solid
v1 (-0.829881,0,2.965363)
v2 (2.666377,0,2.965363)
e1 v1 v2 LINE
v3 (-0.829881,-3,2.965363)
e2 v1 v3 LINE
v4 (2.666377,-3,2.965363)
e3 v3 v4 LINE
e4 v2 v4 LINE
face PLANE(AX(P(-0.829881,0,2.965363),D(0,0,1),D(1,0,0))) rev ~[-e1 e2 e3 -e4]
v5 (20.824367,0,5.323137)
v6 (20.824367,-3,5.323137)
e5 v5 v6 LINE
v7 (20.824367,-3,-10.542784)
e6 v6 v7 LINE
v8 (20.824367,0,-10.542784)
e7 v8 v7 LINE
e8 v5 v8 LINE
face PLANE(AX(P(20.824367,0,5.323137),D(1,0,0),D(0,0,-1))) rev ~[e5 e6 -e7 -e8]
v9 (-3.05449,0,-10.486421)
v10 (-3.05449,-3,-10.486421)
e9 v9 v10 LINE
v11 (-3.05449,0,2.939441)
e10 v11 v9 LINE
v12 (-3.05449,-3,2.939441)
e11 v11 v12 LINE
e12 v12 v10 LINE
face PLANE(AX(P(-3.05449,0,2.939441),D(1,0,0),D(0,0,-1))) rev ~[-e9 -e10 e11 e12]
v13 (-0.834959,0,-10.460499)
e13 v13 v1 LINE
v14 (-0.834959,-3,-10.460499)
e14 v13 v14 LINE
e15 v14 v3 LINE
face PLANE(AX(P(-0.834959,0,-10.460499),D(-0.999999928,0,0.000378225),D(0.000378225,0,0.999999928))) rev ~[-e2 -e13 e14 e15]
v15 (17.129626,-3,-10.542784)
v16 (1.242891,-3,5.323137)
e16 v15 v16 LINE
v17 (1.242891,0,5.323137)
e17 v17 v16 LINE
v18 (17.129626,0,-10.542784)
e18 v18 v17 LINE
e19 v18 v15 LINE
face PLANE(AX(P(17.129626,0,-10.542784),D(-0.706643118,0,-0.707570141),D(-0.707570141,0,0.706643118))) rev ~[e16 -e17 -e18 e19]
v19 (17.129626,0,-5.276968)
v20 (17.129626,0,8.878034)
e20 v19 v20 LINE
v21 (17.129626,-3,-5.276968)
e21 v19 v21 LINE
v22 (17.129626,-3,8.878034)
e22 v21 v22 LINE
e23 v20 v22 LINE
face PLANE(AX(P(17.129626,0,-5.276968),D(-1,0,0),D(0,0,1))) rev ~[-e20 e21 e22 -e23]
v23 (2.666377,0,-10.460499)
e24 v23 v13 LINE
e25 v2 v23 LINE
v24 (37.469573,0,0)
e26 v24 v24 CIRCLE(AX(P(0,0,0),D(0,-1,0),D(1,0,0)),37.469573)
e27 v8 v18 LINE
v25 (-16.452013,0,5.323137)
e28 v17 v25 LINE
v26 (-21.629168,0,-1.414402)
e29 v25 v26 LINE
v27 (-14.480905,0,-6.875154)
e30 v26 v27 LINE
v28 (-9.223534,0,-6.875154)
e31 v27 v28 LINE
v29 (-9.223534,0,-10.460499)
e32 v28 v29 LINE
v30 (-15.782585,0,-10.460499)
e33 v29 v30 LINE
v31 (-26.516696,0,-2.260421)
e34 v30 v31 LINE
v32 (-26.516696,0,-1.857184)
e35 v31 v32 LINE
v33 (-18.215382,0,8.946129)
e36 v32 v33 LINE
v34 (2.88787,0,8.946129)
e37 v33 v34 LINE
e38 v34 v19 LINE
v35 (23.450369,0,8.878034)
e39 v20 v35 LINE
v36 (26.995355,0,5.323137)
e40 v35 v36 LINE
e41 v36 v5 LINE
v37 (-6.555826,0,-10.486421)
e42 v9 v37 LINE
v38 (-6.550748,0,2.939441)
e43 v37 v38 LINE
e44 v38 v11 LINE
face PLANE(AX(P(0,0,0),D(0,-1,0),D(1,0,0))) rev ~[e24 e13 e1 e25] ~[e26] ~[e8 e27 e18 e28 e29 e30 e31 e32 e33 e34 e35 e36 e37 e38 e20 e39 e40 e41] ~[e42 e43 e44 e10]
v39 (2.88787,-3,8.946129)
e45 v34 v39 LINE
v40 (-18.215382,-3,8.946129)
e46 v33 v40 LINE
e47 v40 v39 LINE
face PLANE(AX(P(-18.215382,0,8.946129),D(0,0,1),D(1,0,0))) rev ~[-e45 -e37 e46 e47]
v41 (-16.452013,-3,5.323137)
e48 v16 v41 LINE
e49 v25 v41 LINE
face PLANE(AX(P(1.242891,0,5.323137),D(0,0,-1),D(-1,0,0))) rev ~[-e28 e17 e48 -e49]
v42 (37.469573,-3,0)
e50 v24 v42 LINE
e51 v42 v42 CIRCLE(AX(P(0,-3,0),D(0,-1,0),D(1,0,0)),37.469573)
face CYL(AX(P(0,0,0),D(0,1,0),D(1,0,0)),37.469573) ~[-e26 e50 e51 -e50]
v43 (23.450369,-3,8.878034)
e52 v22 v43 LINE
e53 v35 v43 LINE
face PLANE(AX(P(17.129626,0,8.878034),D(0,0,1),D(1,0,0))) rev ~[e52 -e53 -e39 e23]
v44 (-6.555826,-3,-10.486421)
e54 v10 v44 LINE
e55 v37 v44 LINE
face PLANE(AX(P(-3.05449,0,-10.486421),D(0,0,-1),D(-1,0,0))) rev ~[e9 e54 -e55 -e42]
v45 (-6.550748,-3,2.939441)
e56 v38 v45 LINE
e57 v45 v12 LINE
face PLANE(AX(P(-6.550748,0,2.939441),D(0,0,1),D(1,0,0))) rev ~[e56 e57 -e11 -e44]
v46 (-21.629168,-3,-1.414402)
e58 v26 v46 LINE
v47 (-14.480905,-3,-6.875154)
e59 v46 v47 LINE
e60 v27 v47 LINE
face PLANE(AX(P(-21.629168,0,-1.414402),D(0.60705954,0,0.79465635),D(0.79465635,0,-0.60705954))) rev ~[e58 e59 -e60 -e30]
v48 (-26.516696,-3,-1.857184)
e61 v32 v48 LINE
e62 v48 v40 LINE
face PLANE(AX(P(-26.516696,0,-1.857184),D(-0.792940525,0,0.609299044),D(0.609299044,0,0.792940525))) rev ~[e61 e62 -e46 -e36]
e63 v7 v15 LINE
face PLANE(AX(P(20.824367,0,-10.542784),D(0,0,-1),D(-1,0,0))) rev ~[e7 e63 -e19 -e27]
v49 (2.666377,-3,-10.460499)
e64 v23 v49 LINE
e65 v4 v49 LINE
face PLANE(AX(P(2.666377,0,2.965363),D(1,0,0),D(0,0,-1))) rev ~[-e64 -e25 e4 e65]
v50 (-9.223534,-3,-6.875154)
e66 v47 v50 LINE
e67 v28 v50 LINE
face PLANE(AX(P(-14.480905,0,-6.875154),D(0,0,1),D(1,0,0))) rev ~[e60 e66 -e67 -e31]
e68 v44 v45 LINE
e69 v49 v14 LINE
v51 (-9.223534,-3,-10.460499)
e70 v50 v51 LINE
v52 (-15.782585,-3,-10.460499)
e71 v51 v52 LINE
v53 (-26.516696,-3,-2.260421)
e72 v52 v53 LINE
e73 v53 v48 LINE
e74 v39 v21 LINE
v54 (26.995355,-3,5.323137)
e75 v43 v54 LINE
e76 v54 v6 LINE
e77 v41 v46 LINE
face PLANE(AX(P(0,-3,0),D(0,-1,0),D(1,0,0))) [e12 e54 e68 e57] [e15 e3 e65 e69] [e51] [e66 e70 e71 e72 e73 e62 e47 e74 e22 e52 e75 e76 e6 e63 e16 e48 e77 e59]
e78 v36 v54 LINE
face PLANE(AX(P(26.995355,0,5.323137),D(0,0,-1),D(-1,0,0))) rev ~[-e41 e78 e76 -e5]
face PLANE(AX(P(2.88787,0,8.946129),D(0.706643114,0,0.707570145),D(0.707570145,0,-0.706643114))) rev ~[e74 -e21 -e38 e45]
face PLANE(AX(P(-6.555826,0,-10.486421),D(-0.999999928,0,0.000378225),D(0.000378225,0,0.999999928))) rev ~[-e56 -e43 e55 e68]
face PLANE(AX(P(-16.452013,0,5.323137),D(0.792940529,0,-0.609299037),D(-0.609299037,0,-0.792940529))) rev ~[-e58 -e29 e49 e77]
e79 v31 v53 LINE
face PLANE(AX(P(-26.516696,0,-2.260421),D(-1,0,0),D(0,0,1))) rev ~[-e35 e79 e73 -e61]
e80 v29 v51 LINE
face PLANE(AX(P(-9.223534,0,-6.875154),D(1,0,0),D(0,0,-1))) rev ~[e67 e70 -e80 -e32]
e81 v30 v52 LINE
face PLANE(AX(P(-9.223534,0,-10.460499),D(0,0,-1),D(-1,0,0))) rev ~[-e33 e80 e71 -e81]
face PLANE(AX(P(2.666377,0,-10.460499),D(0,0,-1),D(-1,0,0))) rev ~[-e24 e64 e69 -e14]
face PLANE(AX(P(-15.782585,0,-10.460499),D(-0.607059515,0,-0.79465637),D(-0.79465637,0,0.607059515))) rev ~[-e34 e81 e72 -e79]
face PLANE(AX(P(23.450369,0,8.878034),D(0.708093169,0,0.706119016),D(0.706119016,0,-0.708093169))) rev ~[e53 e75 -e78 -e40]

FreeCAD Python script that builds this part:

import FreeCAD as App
import Part
import Sketcher

V = App.Vector
Q = App.Units.Quantity

doc = App.newDocument("Part")
body = doc.addObject("PartDesign::Body", "Body")

# Sketch on XZ plane
sketch1 = body.newObject("Sketcher::SketchObject", "Sketch")
sketch1.AttachmentSupport = (doc.getObject("XZ_Plane"), [""])
sketch1.MapMode = "FlatFace"
sketch1.addGeometry(Part.Circle(V(0, 0, 0), V(0, 0, 1), 37.47), False)
sketch1.addGeometry(Part.LineSegment(V(-3.05, 2.94, 0), V(-3.05, -10.49, 0)), False)
sketch1.addGeometry(Part.LineSegment(V(-3.05, -10.49, 0), V(-6.56, -10.49, 0)), False)
sketch1.addGeometry(Part.LineSegment(V(-6.56, -10.49, 0), V(-6.55, 2.94, 0)), False)
sketch1.addGeometry(Part.LineSegment(V(-6.55, 2.94, 0), V(-3.05, 2.94, 0)), False)
sketch1.addGeometry(Part.LineSegment(V(2.67, 2.97, 0), V(2.67, -10.46, 0)), False)
sketch1.addGeometry(Part.LineSegment(V(2.67, -10.46, 0), V(-0.83, -10.46, 0)), False)
sketch1.addGeometry(Part.LineSegment(V(-0.83, -10.46, 0), V(-0.83, 2.97, 0)), False)
sketch1.addGeometry(Part.LineSegment(V(-0.83, 2.97, 0), V(2.67, 2.97, 0)), False)
sketch1.addGeometry(Part.LineSegment(V(-21.63, -1.41, 0), V(-14.48, -6.88, 0)), False)
sketch1.addGeometry(Part.LineSegment(V(-14.48, -6.88, 0), V(-9.22, -6.88, 0)), False)
sketch1.addGeometry(Part.LineSegment(V(-9.22, -6.88, 0), V(-9.22, -10.46, 0)), False)
sketch1.addGeometry(Part.LineSegment(V(-9.22, -10.46, 0), V(-15.78, -10.46, 0)), False)
sketch1.addGeometry(Part.LineSegment(V(-15.78, -10.46, 0), V(-26.52, -2.26, 0)), False)
sketch1.addGeometry(Part.LineSegment(V(-26.52, -2.26, 0), V(-26.52, -1.86, 0)), False)
sketch1.addGeometry(Part.LineSegment(V(-26.52, -1.86, 0), V(-18.22, 8.95, 0)), False)
sketch1.addGeometry(Part.LineSegment(V(-18.22, 8.95, 0), V(2.89, 8.95, 0)), False)
sketch1.addGeometry(Part.LineSegment(V(2.89, 8.95, 0), V(17.13, -5.28, 0)), False)
sketch1.addGeometry(Part.LineSegment(V(17.13, -5.28, 0), V(17.13, 8.88, 0)), False)
sketch1.addGeometry(Part.LineSegment(V(17.13, 8.88, 0), V(23.45, 8.88, 0)), False)
sketch1.addGeometry(Part.LineSegment(V(23.45, 8.88, 0), V(27, 5.32, 0)), False)
sketch1.addGeometry(Part.LineSegment(V(27, 5.32, 0), V(20.82, 5.32, 0)), False)
sketch1.addGeometry(Part.LineSegment(V(20.82, 5.32, 0), V(20.82, -10.54, 0)), False)
sketch1.addGeometry(Part.LineSegment(V(20.82, -10.54, 0), V(17.13, -10.54, 0)), False)
sketch1.addGeometry(Part.LineSegment(V(17.13, -10.54, 0), V(1.24, 5.32, 0)), False)
sketch1.addGeometry(Part.LineSegment(V(1.24, 5.32, 0), V(-16.45, 5.32, 0)), False)
sketch1.addGeometry(Part.LineSegment(V(-16.45, 5.32, 0), V(-21.63, -1.41, 0)), False)
sketch1.addConstraint(Sketcher.Constraint("Coincident", 1, 2, 2, 1))
sketch1.addConstraint(Sketcher.Constraint("Coincident", 2, 2, 3, 1))
sketch1.addConstraint(Sketcher.Constraint("Coincident", 3, 2, 4, 1))
sketch1.addConstraint(Sketcher.Constraint("Coincident", 4, 2, 1, 1))
sketch1.addConstraint(Sketcher.Constraint("Coincident", 5, 2, 6, 1))
sketch1.addConstraint(Sketcher.Constraint("Coincident", 6, 2, 7, 1))
sketch1.addConstraint(Sketcher.Constraint("Coincident", 7, 2, 8, 1))
sketch1.addConstraint(Sketcher.Constraint("Coincident", 8, 2, 5, 1))
sketch1.addConstraint(Sketcher.Constraint("Coincident", 9, 2, 10, 1))
sketch1.addConstraint(Sketcher.Constraint("Coincident", 10, 2, 11, 1))
sketch1.addConstraint(Sketcher.Constraint("Coincident", 11, 2, 12, 1))
sketch1.addConstraint(Sketcher.Constraint("Coincident", 12, 2, 13, 1))
sketch1.addConstraint(Sketcher.Constraint("Coincident", 13, 2, 14, 1))
sketch1.addConstraint(Sketcher.Constraint("Coincident", 14, 2, 15, 1))
sketch1.addConstraint(Sketcher.Constraint("Coincident", 15, 2, 16, 1))
sketch1.addConstraint(Sketcher.Constraint("Coincident", 16, 2, 17, 1))
sketch1.addConstraint(Sketcher.Constraint("Coincident", 17, 2, 18, 1))
sketch1.addConstraint(Sketcher.Constraint("Coincident", 18, 2, 19, 1))
sketch1.addConstraint(Sketcher.Constraint("Coincident", 19, 2, 20, 1))
sketch1.addConstraint(Sketcher.Constraint("Coincident", 20, 2, 21, 1))
sketch1.addConstraint(Sketcher.Constraint("Coincident", 21, 2, 22, 1))
sketch1.addConstraint(Sketcher.Constraint("Coincident", 22, 2, 23, 1))
sketch1.addConstraint(Sketcher.Constraint("Coincident", 23, 2, 24, 1))
sketch1.addConstraint(Sketcher.Constraint("Coincident", 24, 2, 25, 1))
sketch1.addConstraint(Sketcher.Constraint("Coincident", 25, 2, 26, 1))
sketch1.addConstraint(Sketcher.Constraint("Coincident", 26, 2, 9, 1))
sketch1.addConstraint(Sketcher.Constraint("Vertical", 1))
sketch1.addConstraint(Sketcher.Constraint("Horizontal", 2))
sketch1.addConstraint(Sketcher.Constraint("Horizontal", 4))
sketch1.addConstraint(Sketcher.Constraint("Vertical", 5))
sketch1.addConstraint(Sketcher.Constraint("Horizontal", 6))
sketch1.addConstraint(Sketcher.Constraint("Horizontal", 8))
sketch1.addConstraint(Sketcher.Constraint("Horizontal", 10))
sketch1.addConstraint(Sketcher.Constraint("Vertical", 11))
sketch1.addConstraint(Sketcher.Constraint("Horizontal", 12))
sketch1.addConstraint(Sketcher.Constraint("Vertical", 14))
sketch1.addConstraint(Sketcher.Constraint("Horizontal", 16))
sketch1.addConstraint(Sketcher.Constraint("Vertical", 18))
sketch1.addConstraint(Sketcher.Constraint("Horizontal", 19))
sketch1.addConstraint(Sketcher.Constraint("Horizontal", 21))
sketch1.addConstraint(Sketcher.Constraint("Vertical", 22))
sketch1.addConstraint(Sketcher.Constraint("Horizontal", 23))
sketch1.addConstraint(Sketcher.Constraint("Horizontal", 25))
sketch1.addConstraint(Sketcher.Constraint("Coincident", 0, 3, -1, 1))
sketch1.addConstraint(Sketcher.Constraint("Parallel", 3, 7))
sketch1.addConstraint(Sketcher.Constraint("Parallel", 9, 13))
sketch1.addConstraint(Sketcher.Constraint("Parallel", 17, 24))
sketch1.addConstraint(Sketcher.Constraint("Parallel", 15, 26))
sketch1.addConstraint(Sketcher.Constraint("Horizontal", 6, 2, 11, 2))
sketch1.addConstraint(Sketcher.Constraint("Horizontal", 21, 2, 24, 2))
sketch1.addConstraint(Sketcher.Constraint("Vertical", 18, 2, 23, 2))
sketch1.addConstraint(Sketcher.Constraint("Equal", 2, 6))
sketch1.addConstraint(Sketcher.Constraint("Equal", 1, 5))
sketch1.addConstraint(Sketcher.Constraint("Angle", 20, Q("-45.079981 deg")))
sketch1.addConstraint(Sketcher.Constraint("Diameter", 0, 74.939146))
sketch1.addConstraint(Sketcher.Constraint("DistanceX", 21, 2, 19, 2, 2.626002))
sketch1.addConstraint(Sketcher.Constraint("DistanceX", 8, 1, 8, 2, 3.496258))
sketch1.addConstraint(Sketcher.Constraint("DistanceX", 10, 1, 10, 2, 5.257371))
sketch1.addConstraint(Sketcher.Constraint("DistanceX", 12, 2, 12, 1, 6.559051))
sketch1.addConstraint(Sketcher.Constraint("DistanceX", 21, 2, 21, 1, 6.170988))
sketch1.addConstraint(Sketcher.Constraint("DistanceX", 23, 2, 23, 1, 3.694741))
sketch1.addConstraint(Sketcher.Constraint("DistanceY", 22, 2, 22, 1, 15.865921))
sketch1.addConstraint(Sketcher.Constraint("DistanceY", 5, 2, -1, 1, 10.460499))
sketch1.addConstraint(Sketcher.Constraint("DistanceY", 26, 2, -1, 1, 1.414402))
sketch1.addConstraint(Sketcher.Constraint("DistanceX", 16, 2, 19, 2, 20.562499))
sketch1.addConstraint(Sketcher.Constraint("DistanceX", 2, 2, 2, 1, 3.501336))
sketch1.addConstraint(Sketcher.Constraint("DistanceX", 16, 1, 16, 2, 21.103252))
sketch1.addConstraint(Sketcher.Constraint("DistanceX", 25, 2, 25, 1, 17.694904))
sketch1.addConstraint(Sketcher.Constraint("DistanceY", 1, 2, 1, 1, 13.425862))
sketch1.addConstraint(Sketcher.Constraint("DistanceY", 11, 2, 11, 1, 3.585345))
sketch1.addConstraint(Sketcher.Constraint("DistanceY", 14, 1, 14, 2, 0.403237))
sketch1.addConstraint(Sketcher.Constraint("DistanceY", 18, 1, 18, 2, 14.155002))
sketch1.addConstraint(Sketcher.Constraint("DistanceX", 1, 2, -1, 1, 3.05449))
sketch1.addConstraint(Sketcher.Constraint("DistanceY", 1, 2, -1, 1, 10.486421))
sketch1.addConstraint(Sketcher.Constraint("DistanceX", 6, 2, -1, 1, 0.834959))
sketch1.addConstraint(Sketcher.Constraint("DistanceY", 13, 2, -1, 1, 2.260421))
sketch1.addConstraint(Sketcher.Constraint("DistanceY", -1, 1, 15, 2, 8.946129))
sketch1.addConstraint(Sketcher.Constraint("DistanceX", -1, 1, 16, 2, 2.88787))
sketch1.addConstraint(Sketcher.Constraint("DistanceX", -1, 1, 24, 2, 1.242891))
sketch1.addConstraint(Sketcher.Constraint("DistanceX", 26, 2, -1, 1, 21.629168))
pad1 = body.newObject("PartDesign::Pad", "Pad")
pad1.Profile = sketch1
pad1.Length = 3

doc.recompute()
